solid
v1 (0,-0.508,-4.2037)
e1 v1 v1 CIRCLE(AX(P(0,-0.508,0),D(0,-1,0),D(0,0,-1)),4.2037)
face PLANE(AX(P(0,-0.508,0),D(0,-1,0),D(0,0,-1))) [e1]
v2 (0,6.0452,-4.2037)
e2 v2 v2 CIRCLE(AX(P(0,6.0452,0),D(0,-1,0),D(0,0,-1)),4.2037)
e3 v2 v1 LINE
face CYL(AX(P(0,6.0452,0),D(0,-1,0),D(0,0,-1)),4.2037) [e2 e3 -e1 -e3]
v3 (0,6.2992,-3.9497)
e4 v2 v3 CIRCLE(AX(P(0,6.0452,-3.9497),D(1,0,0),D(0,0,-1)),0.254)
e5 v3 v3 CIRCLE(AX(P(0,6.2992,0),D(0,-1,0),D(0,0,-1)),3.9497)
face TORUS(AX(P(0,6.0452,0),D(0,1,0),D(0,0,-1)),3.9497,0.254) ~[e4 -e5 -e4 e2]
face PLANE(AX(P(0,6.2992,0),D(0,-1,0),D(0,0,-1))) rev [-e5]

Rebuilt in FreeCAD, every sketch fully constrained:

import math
import FreeCAD as App
import Part
import Sketcher

V = App.Vector
Q = App.Units.Quantity

doc = App.newDocument("Part")
body = doc.addObject("PartDesign::Body", "Body")

# Sketch on YZ plane
sketch1 = doc.addObject("Sketcher::SketchObject", "Sketch")
body.addObject(sketch1)
sketch1.AttachmentSupport = (doc.YZ_Plane, [""])
sketch1.MapMode = "FlatFace"
sketch1.addGeometry([
    Part.LineSegment(V(6.3, 0, 0), V(-0.51, 0, 0)),  # 0
    Part.LineSegment(V(-0.51, 0, 0), V(-0.51, -4.2, 0)),  # 1
    Part.LineSegment(V(-0.51, -4.2, 0), V(6.05, -4.2, 0)),  # 2
    Part.ArcOfCircle(Part.Circle(V(6.05, -3.95, 0), V(0, 0, 1), 0.25), math.radians(-90), math.radians(0)),  # 3
    Part.LineSegment(V(6.3, -3.95, 0), V(6.3, 0, 0)),  # 4
], False)
sketch1.addConstraint([
    Sketcher.Constraint("Coincident", 0, 2, 1, 1),
    Sketcher.Constraint("Coincident", 1, 2, 2, 1),
    Sketcher.Constraint("Tangent", 2, 2, 3, 1),
    Sketcher.Constraint("Tangent", 3, 2, 4, 1),
    Sketcher.Constraint("Coincident", 4, 2, 0, 1),
    Sketcher.Constraint("Horizontal", 0),
    Sketcher.Constraint("Vertical", 1),
    Sketcher.Constraint("Horizontal", 2),
    Sketcher.Constraint("Vertical", 4),
    Sketcher.Constraint("PointOnObject", 0, 2, -1),
    Sketcher.Constraint("Radius", 3, Q("0.01 in")),
    Sketcher.Constraint("DistanceX", 0, 2, 0, 1, Q("0.268 in")),
    Sketcher.Constraint("DistanceX", 0, 2, -1, 1, Q("0.02 in")),
    Sketcher.Constraint("DistanceY", 1, 2, 1, 1, Q("0.1655 in")),
])
revolution = doc.addObject("PartDesign::Revolution", "Revolution")
body.addObject(revolution)
revolution.Profile = sketch1
revolution.ReferenceAxis = (sketch1, ["H_Axis"])
revolution.Angle = 360

doc.recompute()
